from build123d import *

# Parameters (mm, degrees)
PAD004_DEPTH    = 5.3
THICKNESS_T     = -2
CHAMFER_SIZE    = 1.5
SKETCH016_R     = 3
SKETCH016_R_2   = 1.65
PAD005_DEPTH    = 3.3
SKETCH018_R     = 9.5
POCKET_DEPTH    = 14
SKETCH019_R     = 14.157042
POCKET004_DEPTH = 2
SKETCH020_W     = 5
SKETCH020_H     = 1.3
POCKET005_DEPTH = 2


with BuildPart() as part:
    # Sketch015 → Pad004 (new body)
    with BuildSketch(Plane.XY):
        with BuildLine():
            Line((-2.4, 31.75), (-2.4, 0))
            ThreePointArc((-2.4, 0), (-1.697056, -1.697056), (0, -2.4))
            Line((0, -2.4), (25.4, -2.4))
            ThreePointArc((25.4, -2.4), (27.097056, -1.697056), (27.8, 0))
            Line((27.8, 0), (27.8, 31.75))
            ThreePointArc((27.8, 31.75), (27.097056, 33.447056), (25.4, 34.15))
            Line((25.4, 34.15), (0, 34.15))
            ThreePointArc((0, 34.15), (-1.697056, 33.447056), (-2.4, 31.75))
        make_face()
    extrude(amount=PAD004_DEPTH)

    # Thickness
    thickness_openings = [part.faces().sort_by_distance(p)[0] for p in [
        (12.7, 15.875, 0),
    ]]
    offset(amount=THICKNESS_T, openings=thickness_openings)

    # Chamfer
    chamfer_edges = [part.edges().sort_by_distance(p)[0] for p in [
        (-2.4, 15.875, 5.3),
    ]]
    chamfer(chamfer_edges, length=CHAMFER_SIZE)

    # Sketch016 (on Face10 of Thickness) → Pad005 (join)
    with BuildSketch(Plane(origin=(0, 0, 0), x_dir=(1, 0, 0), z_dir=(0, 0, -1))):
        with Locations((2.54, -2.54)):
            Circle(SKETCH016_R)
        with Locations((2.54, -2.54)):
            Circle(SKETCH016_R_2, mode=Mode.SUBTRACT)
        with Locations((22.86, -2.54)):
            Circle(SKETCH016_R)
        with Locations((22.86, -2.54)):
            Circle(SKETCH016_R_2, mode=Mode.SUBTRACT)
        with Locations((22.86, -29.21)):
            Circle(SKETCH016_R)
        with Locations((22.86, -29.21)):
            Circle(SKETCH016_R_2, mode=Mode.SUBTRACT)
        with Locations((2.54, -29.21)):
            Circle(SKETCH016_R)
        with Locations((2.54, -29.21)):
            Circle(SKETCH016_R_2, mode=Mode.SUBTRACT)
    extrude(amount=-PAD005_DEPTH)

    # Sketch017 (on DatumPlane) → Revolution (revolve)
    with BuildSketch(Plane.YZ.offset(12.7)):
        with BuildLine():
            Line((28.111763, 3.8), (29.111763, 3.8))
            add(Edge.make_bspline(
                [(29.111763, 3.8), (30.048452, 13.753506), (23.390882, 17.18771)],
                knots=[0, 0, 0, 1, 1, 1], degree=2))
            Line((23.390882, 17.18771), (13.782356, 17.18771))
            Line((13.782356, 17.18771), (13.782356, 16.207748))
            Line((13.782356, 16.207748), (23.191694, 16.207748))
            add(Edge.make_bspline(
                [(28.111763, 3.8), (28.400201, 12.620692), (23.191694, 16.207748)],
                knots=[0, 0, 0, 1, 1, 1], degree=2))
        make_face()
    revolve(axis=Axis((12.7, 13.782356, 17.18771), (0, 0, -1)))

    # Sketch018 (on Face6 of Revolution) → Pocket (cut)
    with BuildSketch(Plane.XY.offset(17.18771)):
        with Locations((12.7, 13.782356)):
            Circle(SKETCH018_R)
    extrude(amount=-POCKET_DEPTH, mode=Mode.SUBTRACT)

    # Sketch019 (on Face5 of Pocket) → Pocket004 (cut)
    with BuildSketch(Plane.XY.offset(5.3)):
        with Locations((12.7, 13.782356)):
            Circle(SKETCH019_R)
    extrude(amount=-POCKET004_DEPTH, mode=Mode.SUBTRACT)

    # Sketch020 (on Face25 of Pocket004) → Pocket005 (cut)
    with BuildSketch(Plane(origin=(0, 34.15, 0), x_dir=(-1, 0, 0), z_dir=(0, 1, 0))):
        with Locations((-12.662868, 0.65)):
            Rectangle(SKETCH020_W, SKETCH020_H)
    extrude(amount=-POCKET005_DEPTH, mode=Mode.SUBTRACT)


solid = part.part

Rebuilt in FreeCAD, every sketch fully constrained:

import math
import FreeCAD as App
import Part
import Sketcher

V = App.Vector


def edges_at(feature, points):
    """Names of the edges that pass closest to the given points."""
    edges = feature.Shape.Edges
    near = lambda p: min(range(len(edges)), key=lambda i: edges[i].distToShape(Part.Vertex(*p))[0])
    return sorted({f"Edge{near(p) + 1}" for p in points})


def faces_at(feature, points):
    """Names of the faces that lie closest to the given points."""
    faces = feature.Shape.Faces
    near = lambda p: min(range(len(faces)), key=lambda i: faces[i].distToShape(Part.Vertex(*p))[0])
    return sorted({f"Face{near(p) + 1}" for p in points})

doc = App.newDocument("Part")
body = doc.addObject("PartDesign::Body", "Body")

sketch1 = doc.addObject("Sketcher::SketchObject", "Sketch")
body.addObject(sketch1)
sketch1.AttachmentSupport = (doc.XY_Plane, [""])
sketch1.MapMode = "FlatFace"
sketch1.addGeometry(Part.LineSegment(V(-2.4, 31.8, 0), V(-2.4, 0, 0)), False)
sketch1.addGeometry(Part.ArcOfCircle(Part.Circle(V(0, 0, 0), V(0, 0, 1), 2.4), math.radians(-180), math.radians(-90)), False)
sketch1.addGeometry(Part.LineSegment(V(0, -2.4, 0), V(25.4, -2.4, 0)), False)
sketch1.addGeometry(Part.ArcOfCircle(Part.Circle(V(25.4, 0, 0), V(0, 0, 1), 2.4), math.radians(-90), math.radians(0)), False)
sketch1.addGeometry(Part.LineSegment(V(27.8, 0, 0), V(27.8, 31.8, 0)), False)
sketch1.addGeometry(Part.ArcOfCircle(Part.Circle(V(25.4, 31.7, 0), V(0, 0, 1), 2.4), math.radians(0), math.radians(90)), False)
sketch1.addGeometry(Part.LineSegment(V(25.4, 34.1, 0), V(0, 34.1, 0)), False)
sketch1.addGeometry(Part.ArcOfCircle(Part.Circle(V(0, 31.7, 0), V(0, 0, 1), 2.4), math.radians(90), math.radians(180)), False)
sketch1.addConstraint(Sketcher.Constraint("Tangent", 0, 2, 1, 1))
sketch1.addConstraint(Sketcher.Constraint("Tangent", 1, 2, 2, 1))
sketch1.addConstraint(Sketcher.Constraint("Tangent", 2, 2, 3, 1))
sketch1.addConstraint(Sketcher.Constraint("Tangent", 3, 2, 4, 1))
sketch1.addConstraint(Sketcher.Constraint("Tangent", 4, 2, 5, 1))
sketch1.addConstraint(Sketcher.Constraint("Tangent", 5, 2, 6, 1))
sketch1.addConstraint(Sketcher.Constraint("Tangent", 6, 2, 7, 1))
sketch1.addConstraint(Sketcher.Constraint("Tangent", 7, 2, 0, 1))
sketch1.addConstraint(Sketcher.Constraint("Vertical", 0))
sketch1.addConstraint(Sketcher.Constraint("Horizontal", 2))
sketch1.addConstraint(Sketcher.Constraint("Vertical", 4))
sketch1.addConstraint(Sketcher.Constraint("Horizontal", 6))
sketch1.addConstraint(Sketcher.Constraint("Coincident", 1, 3, -1, 1))
sketch1.addConstraint(Sketcher.Constraint("Equal", 1, 3))
sketch1.addConstraint(Sketcher.Constraint("Equal", 3, 5))
sketch1.addConstraint(Sketcher.Constraint("Equal", 5, 7))
sketch1.addConstraint(Sketcher.Constraint("Radius", 1, 2.400001))
sketch1.addConstraint(Sketcher.Constraint("DistanceX", 2, 1, 2, 2, 25.4))
sketch1.addConstraint(Sketcher.Constraint("DistanceY", 0, 2, 0, 1, 31.75))
pad1 = doc.addObject("PartDesign::Pad", "Pad")
body.addObject(pad1)
pad1.Profile = sketch1
pad1.Length = 5.3
doc.recompute()

thickness = doc.addObject("PartDesign::Thickness", "Thickness")
body.addObject(thickness)
thickness.Base = (pad1, faces_at(pad1, [(12.7, 15.875, 0)]))
thickness.Value = 2
thickness.Reversed = True
thickness.Join = "Arc"
doc.recompute()

chamfer = doc.addObject("PartDesign::Chamfer", "Chamfer")
body.addObject(chamfer)
chamfer.Base = (thickness, edges_at(thickness, [(-2.4, 15.875, 5.3)]))
chamfer.Size = 1.5

sketch2 = doc.addObject("Sketcher::SketchObject", "Sketch001")
body.addObject(sketch2)
sketch2.AttachmentSupport = (doc.XY_Plane, [""])
sketch2.MapMode = "FlatFace"
sketch2.addGeometry(Part.Circle(V(2.5, 2.5, 0), V(0, 0, 1), 3), False)
sketch2.addGeometry(Part.Circle(V(2.5, 2.5, 0), V(0, 0, 1), 1.6), False)
sketch2.addGeometry(Part.Circle(V(22.9, 2.5, 0), V(0, 0, 1), 3), False)
sketch2.addGeometry(Part.Circle(V(22.9, 2.5, 0), V(0, 0, 1), 1.6), False)
sketch2.addGeometry(Part.Circle(V(22.9, 29.2, 0), V(0, 0, 1), 3), False)
sketch2.addGeometry(Part.Circle(V(22.9, 29.2, 0), V(0, 0, 1), 1.6), False)
sketch2.addGeometry(Part.Circle(V(2.5, 29.2, 0), V(0, 0, 1), 3), False)
sketch2.addGeometry(Part.Circle(V(2.5, 29.2, 0), V(0, 0, 1), 1.6), False)
sketch2.addConstraint(Sketcher.Constraint("Coincident", 1, 3, 0, 3))
sketch2.addConstraint(Sketcher.Constraint("Coincident", 3, 3, 2, 3))
sketch2.addConstraint(Sketcher.Constraint("Coincident", 5, 3, 4, 3))
sketch2.addConstraint(Sketcher.Constraint("Coincident", 7, 3, 6, 3))
sketch2.addConstraint(Sketcher.Constraint("Equal", 0, 2))
sketch2.addConstraint(Sketcher.Constraint("Equal", 1, 3))
sketch2.addConstraint(Sketcher.Constraint("Equal", 2, 4))
sketch2.addConstraint(Sketcher.Constraint("Equal", 3, 5))
sketch2.addConstraint(Sketcher.Constraint("Equal", 4, 6))
sketch2.addConstraint(Sketcher.Constraint("Equal", 5, 7))
sketch2.addConstraint(Sketcher.Constraint("Horizontal", 1, 3, 2, 3))
sketch2.addConstraint(Sketcher.Constraint("Horizontal", 5, 3, 6, 3))
sketch2.addConstraint(Sketcher.Constraint("Vertical", 3, 3, 4, 3))
sketch2.addConstraint(Sketcher.Constraint("Vertical", 1, 3, 6, 3))
sketch2.addConstraint(Sketcher.Constraint("Diameter", 0, 6.0))
sketch2.addConstraint(Sketcher.Constraint("Diameter", 1, 3.3))
sketch2.addConstraint(Sketcher.Constraint("DistanceX", -1, 1, 0, 3, 2.54))
sketch2.addConstraint(Sketcher.Constraint("DistanceY", -1, 1, 0, 3, 2.54))
sketch2.addConstraint(Sketcher.Constraint("DistanceX", -1, 1, 2, 3, 22.86))
sketch2.addConstraint(Sketcher.Constraint("DistanceY", -1, 1, 4, 3, 29.21))
pad2 = doc.addObject("PartDesign::Pad", "Pad001")
body.addObject(pad2)
pad2.Profile = sketch2
pad2.Length = 3.3

sketch3 = doc.addObject("Sketcher::SketchObject", "Sketch002")
body.addObject(sketch3)
sketch3.AttachmentSupport = (doc.YZ_Plane, [""])
sketch3.MapMode = "FlatFace"
sketch3.AttachmentOffset = App.Placement(V(0, 0, 12.7), App.Rotation())
sketch3.addGeometry(Part.LineSegment(V(28.111763, 3.8, 0), V(29.111763, 3.8, 0)), False)
sketch3.addGeometry(Part.BSplineCurve([V(29.111763, 3.8, 0), V(30.048452, 13.753506, 0), V(23.390882, 17.18771, 0)], [3, 3], [0, 1], False, 2, [1, 1, 1], False), False)
sketch3.addGeometry(Part.LineSegment(V(23.390882, 17.18771, 0), V(13.782356, 17.18771, 0)), False)
sketch3.addGeometry(Part.LineSegment(V(13.782356, 17.18771, 0), V(13.782356, 16.207748, 0)), False)
sketch3.addGeometry(Part.LineSegment(V(13.782356, 16.207748, 0), V(23.191694, 16.207748, 0)), False)
sketch3.addGeometry(Part.BSplineCurve([V(28.111763, 3.8, 0), V(28.400201, 12.620692, 0), V(23.191694, 16.207748, 0)], [3, 3], [0, 1], False, 2, [1, 1, 1], False), False)
sketch3.addGeometry(Part.LineSegment(V(13.782356, 17.18771, 0), V(13.782356, 3.8, 0)), True)
sketch3.addConstraint(Sketcher.Constraint("Block", 1))
sketch3.addConstraint(Sketcher.Constraint("Block", 5))
sketch3.addConstraint(Sketcher.Constraint("Coincident", 0, 2, 1, 1))
sketch3.addConstraint(Sketcher.Constraint("Coincident", 1, 2, 2, 1))
sketch3.addConstraint(Sketcher.Constraint("Coincident", 2, 2, 3, 1))
sketch3.addConstraint(Sketcher.Constraint("Coincident", 3, 2, 4, 1))
sketch3.addConstraint(Sketcher.Constraint("Coincident", 4, 2, 5, 2))
sketch3.addConstraint(Sketcher.Constraint("Coincident", 5, 1, 0, 1))
sketch3.addConstraint(Sketcher.Constraint("Horizontal", 2))
sketch3.addConstraint(Sketcher.Constraint("Vertical", 3))
sketch3.addConstraint(Sketcher.Constraint("Horizontal", 4))
sketch3.addConstraint(Sketcher.Constraint("Vertical", 6))
sketch3.addConstraint(Sketcher.Constraint("Coincident", 6, 1, 2, 2))
sketch3.addConstraint(Sketcher.Constraint("Horizontal", 0, 2, 6, 2))
sketch3.addConstraint(Sketcher.Constraint("DistanceX", 2, 2, 2, 1, 9.608526))
revolution = doc.addObject("PartDesign::Revolution", "Revolution")
body.addObject(revolution)
revolution.Profile = sketch3
revolution.ReferenceAxis = (sketch3, ["Axis0"])
revolution.Angle = 360

sketch4 = doc.addObject("Sketcher::SketchObject", "Sketch003")
body.addObject(sketch4)
sketch4.AttachmentSupport = (doc.XY_Plane, [""])
sketch4.MapMode = "FlatFace"
sketch4.AttachmentOffset = App.Placement(V(0, 0, 17.18771), App.Rotation())
sketch4.addGeometry(Part.Circle(V(13, 14, 0), V(0, 0, 1), 10), False)
sketch4.addConstraint(Sketcher.Constraint("Diameter", 0, 19.0))
sketch4.addConstraint(Sketcher.Constraint("DistanceX", -1, 1, 0, 3, 12.7))
sketch4.addConstraint(Sketcher.Constraint("DistanceY", -1, 1, 0, 3, 13.782356))
pocket1 = doc.addObject("PartDesign::Pocket", "Pocket")
body.addObject(pocket1)
pocket1.Profile = sketch4
pocket1.Length = 14

sketch5 = doc.addObject("Sketcher::SketchObject", "Sketch004")
body.addObject(sketch5)
sketch5.AttachmentSupport = (doc.XY_Plane, [""])
sketch5.MapMode = "FlatFace"
sketch5.AttachmentOffset = App.Placement(V(0, 0, 5.3), App.Rotation())
sketch5.addGeometry(Part.Circle(V(13, 14, 0), V(0, 0, 1), 14), False)
sketch5.addConstraint(Sketcher.Constraint("DistanceX", -1, 1, 0, 3, 12.7))
sketch5.addConstraint(Sketcher.Constraint("Diameter", 0, 28.314084))
sketch5.addConstraint(Sketcher.Constraint("DistanceY", -1, 1, 0, 3, 13.782356))
pocket2 = doc.addObject("PartDesign::Pocket", "Pocket001")
body.addObject(pocket2)
pocket2.Profile = sketch5
pocket2.Length = 2

sketch6 = doc.addObject("Sketcher::SketchObject", "Sketch005")
body.addObject(sketch6)
sketch6.AttachmentSupport = (doc.XZ_Plane, [""])
sketch6.MapMode = "FlatFace"
sketch6.AttachmentOffset = App.Placement(V(0, 0, -34.15), App.Rotation())
sketch6.addGeometry(Part.LineSegment(V(15.2, 1.3, 0), V(15.2, 0, 0)), False)
sketch6.addGeometry(Part.LineSegment(V(15.2, 0, 0), V(10.2, 0, 0)), False)
sketch6.addGeometry(Part.LineSegment(V(10.2, 0, 0), V(10.2, 1.3, 0)), False)
sketch6.addGeometry(Part.LineSegment(V(10.2, 1.3, 0), V(15.2, 1.3, 0)), False)
sketch6.addConstraint(Sketcher.Constraint("Coincident", 0, 2, 1, 1))
sketch6.addConstraint(Sketcher.Constraint("Coincident", 1, 2, 2, 1))
sketch6.addConstraint(Sketcher.Constraint("Coincident", 2, 2, 3, 1))
sketch6.addConstraint(Sketcher.Constraint("Coincident", 3, 2, 0, 1))
sketch6.addConstraint(Sketcher.Constraint("Vertical", 0))
sketch6.addConstraint(Sketcher.Constraint("Horizontal", 1))
sketch6.addConstraint(Sketcher.Constraint("Vertical", 2))
sketch6.addConstraint(Sketcher.Constraint("Horizontal", 3))
sketch6.addConstraint(Sketcher.Constraint("PointOnObject", 0, 2, -1))
sketch6.addConstraint(Sketcher.Constraint("DistanceX", 1, 2, 1, 1, 5.0))
sketch6.addConstraint(Sketcher.Constraint("DistanceY", 0, 2, 0, 1, 1.3))
sketch6.addConstraint(Sketcher.Constraint("DistanceX", -1, 1, 0, 2, 15.162868))
pocket3 = doc.addObject("PartDesign::Pocket", "Pocket002")
body.addObject(pocket3)
pocket3.Profile = sketch6
pocket3.Length = 2
pocket3.Reversed = True

doc.recompute()
